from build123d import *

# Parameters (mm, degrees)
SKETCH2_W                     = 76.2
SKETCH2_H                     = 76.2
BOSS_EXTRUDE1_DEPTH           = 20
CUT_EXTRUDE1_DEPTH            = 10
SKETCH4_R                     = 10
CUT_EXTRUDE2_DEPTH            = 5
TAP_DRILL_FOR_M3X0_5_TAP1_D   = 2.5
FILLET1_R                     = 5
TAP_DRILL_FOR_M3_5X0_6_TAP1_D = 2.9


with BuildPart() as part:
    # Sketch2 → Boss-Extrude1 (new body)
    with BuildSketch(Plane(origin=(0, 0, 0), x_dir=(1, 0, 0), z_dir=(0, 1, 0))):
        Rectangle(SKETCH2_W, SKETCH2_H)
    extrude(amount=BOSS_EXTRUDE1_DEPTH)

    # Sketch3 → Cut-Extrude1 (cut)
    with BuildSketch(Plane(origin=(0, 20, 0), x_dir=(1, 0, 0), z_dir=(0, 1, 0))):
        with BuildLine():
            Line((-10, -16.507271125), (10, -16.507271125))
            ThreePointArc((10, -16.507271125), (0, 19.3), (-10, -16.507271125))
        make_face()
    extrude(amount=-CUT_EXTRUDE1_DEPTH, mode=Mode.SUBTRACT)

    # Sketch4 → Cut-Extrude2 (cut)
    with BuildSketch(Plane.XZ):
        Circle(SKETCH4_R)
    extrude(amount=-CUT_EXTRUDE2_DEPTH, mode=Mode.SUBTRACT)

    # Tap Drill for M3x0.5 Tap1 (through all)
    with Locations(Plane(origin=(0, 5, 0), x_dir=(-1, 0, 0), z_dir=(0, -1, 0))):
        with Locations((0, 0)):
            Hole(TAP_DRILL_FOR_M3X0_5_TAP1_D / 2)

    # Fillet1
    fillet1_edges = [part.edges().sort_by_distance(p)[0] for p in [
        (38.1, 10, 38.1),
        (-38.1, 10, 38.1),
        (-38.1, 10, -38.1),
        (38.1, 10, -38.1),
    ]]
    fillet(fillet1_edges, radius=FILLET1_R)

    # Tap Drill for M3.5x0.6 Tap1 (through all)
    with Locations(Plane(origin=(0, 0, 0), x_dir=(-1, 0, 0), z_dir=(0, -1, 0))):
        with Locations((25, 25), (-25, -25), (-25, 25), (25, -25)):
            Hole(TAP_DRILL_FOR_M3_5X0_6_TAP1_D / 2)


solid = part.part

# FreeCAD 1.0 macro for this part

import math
import FreeCAD as App
import Part
import Sketcher
from FreeCAD import Vector
Q = App.Units.Quantity


def edges_at(feature, points):
    """Names of the edges that pass closest to the given points."""
    edges = feature.Shape.Edges
    near = lambda p: min(range(len(edges)), key=lambda i: edges[i].distToShape(Part.Vertex(*p))[0])
    return sorted({f"Edge{near(p) + 1}" for p in points})

doc = App.newDocument("Part")
body = doc.addObject("PartDesign::Body", "Body")

sketch1 = body.newObject("Sketcher::SketchObject", "Sketch")
sketch1.AttachmentSupport = (doc.getObject("XZ_Plane"), [""])
sketch1.MapMode = "FlatFace"
sketch1.addGeometry([
    Part.LineSegment(Vector(-38, -38, 0), Vector(-38, 38, 0)),
    Part.LineSegment(Vector(-38, 38, 0), Vector(38, 38, 0)),
    Part.LineSegment(Vector(38, 38, 0), Vector(38, -38, 0)),
    Part.LineSegment(Vector(38, -38, 0), Vector(-38, -38, 0)),
], False)
sketch1.addConstraint([
    Sketcher.Constraint("Coincident", 0, 2, 1, 1),
    Sketcher.Constraint("Coincident", 1, 2, 2, 1),
    Sketcher.Constraint("Coincident", 2, 2, 3, 1),
    Sketcher.Constraint("Coincident", 3, 2, 0, 1),
    Sketcher.Constraint("Vertical", 0),
    Sketcher.Constraint("Horizontal", 1),
    Sketcher.Constraint("Vertical", 2),
    Sketcher.Constraint("Horizontal", 3),
    Sketcher.Constraint("Symmetric", 0, 2, 2, 2, -1, 1),
    Sketcher.Constraint("Equal", 3, 0),
    Sketcher.Constraint("DistanceX", 1, 1, 1, 2, Q("76.2 mm")),
])
pad1 = body.newObject("PartDesign::Pad", "Pad")
pad1.Profile = sketch1
pad1.Length = 20
pad1.Reversed = True

sketch2 = body.newObject("Sketcher::SketchObject", "Sketch001")
sketch2.AttachmentSupport = (doc.getObject("XZ_Plane"), [""])
sketch2.MapMode = "FlatFace"
sketch2.AttachmentOffset = App.Placement(Vector(0, 0, -20), App.Rotation())
sketch2.addGeometry([
    Part.LineSegment(Vector(-10, 17, 0), Vector(10, 17, 0)),
    Part.ArcOfCircle(Part.Circle(Vector(0, 0, 0), Vector(0, 0, 1), 19), math.radians(121), math.radians(419)),
], False)
sketch2.addConstraint([
    Sketcher.Constraint("Coincident", 0, 1, 1, 1),
    Sketcher.Constraint("Coincident", 1, 2, 0, 2),
    Sketcher.Constraint("Horizontal", 0),
    Sketcher.Constraint("Coincident", 1, 3, -1, 1),
    Sketcher.Constraint("Radius", 1, Q("19.3 mm")),
    Sketcher.Constraint("DistanceX", 0, 1, 0, 2, Q("20 mm")),
])
pocket1 = body.newObject("PartDesign::Pocket", "Pocket")
pocket1.Profile = sketch2
pocket1.Length = 10
pocket1.Reversed = True

sketch3 = body.newObject("Sketcher::SketchObject", "Sketch002")
sketch3.AttachmentSupport = (doc.getObject("XZ_Plane"), [""])
sketch3.MapMode = "FlatFace"
sketch3.addGeometry(Part.Circle(Vector(0, 0, 0), Vector(0, 0, 1), 10), False)
sketch3.addConstraint([
    Sketcher.Constraint("Coincident", 0, 3, -1, 1),
    Sketcher.Constraint("Diameter", 0, Q("20 mm")),
])
pocket2 = body.newObject("PartDesign::Pocket", "Pocket001")
pocket2.Profile = sketch3
pocket2.Length = 5

sketch4 = body.newObject("Sketcher::SketchObject", "Sketch003")
sketch4.AttachmentSupport = (doc.getObject("XZ_Plane"), [""])
sketch4.MapMode = "FlatFace"
sketch4.AttachmentOffset = App.Placement(Vector(0, 0, -5), App.Rotation())
sketch4.addGeometry(Part.Circle(Vector(0, 0, 0), Vector(0, 0, 1), 1.2), False)
sketch4.addConstraint([
    Sketcher.Constraint("Coincident", 0, 3, -1, 1),
    Sketcher.Constraint("Diameter", 0, Q("2.5 mm")),
])
doc.recompute()
hole = body.newObject("PartDesign::Hole", "Hole")
hole.Profile = sketch4
hole.ThreadType = "None"
hole.Diameter = 2.5
hole.DepthType = "ThroughAll"
doc.recompute()

fillet = body.newObject("PartDesign::Fillet", "Fillet")
fillet.Base = (hole, edges_at(hole, [
    (38.1, 10, 38.1),
    (-38.1, 10, 38.1),
    (-38.1, 10, -38.1),
    (38.1, 10, -38.1),
]))
fillet.Radius = 5

sketch5 = body.newObject("Sketcher::SketchObject", "Sketch004")
sketch5.AttachmentSupport = (doc.getObject("XZ_Plane"), [""])
sketch5.MapMode = "FlatFace"
sketch5.addGeometry([
    Part.Circle(Vector(-25, -25, 0), Vector(0, 0, 1), 1.4),
    Part.Circle(Vector(25, 25, 0), Vector(0, 0, 1), 1.4),
    Part.Circle(Vector(25, -25, 0), Vector(0, 0, 1), 1.4),
    Part.Circle(Vector(-25, 25, 0), Vector(0, 0, 1), 1.4),
], False)
sketch5.addConstraint([
    Sketcher.Constraint("Equal", 0, 1),
    Sketcher.Constraint("Equal", 1, 2),
    Sketcher.Constraint("Equal", 2, 3),
    Sketcher.Constraint("Symmetric", 0, 3, 1, 3, -1, 1),
    Sketcher.Constraint("Symmetric", 2, 3, 3, 3, -1, 1),
    Sketcher.Constraint("Symmetric", 0, 3, 2, 3, -2),
    Sketcher.Constraint("Diameter", 0, Q("2.9 mm")),
    Sketcher.Constraint("DistanceX", 0, 3, -1, 1, Q("25 mm")),
    Sketcher.Constraint("DistanceY", 0, 3, -1, 1, Q("25 mm")),
])
doc.recompute()
hole2 = body.newObject("PartDesign::Hole", "Hole001")
hole2.Profile = sketch5
hole2.ThreadType = "None"
hole2.Diameter = 2.9
hole2.DepthType = "ThroughAll"

doc.recompute()
